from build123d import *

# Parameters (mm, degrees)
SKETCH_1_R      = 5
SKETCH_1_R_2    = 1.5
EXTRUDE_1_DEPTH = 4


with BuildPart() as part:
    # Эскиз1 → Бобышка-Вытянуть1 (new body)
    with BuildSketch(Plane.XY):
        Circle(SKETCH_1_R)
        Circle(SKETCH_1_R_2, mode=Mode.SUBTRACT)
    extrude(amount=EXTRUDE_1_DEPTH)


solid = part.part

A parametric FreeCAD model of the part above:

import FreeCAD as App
import Part
import Sketcher
from FreeCAD import Vector
Q = App.Units.Quantity

doc = App.newDocument("Part")
body = doc.addObject("PartDesign::Body", "Body")

# Sketch on XY plane
sketch1 = body.newObject("Sketcher::SketchObject", "Sketch")
sketch1.AttachmentSupport = (doc.getObject("XY_Plane"), [""])
sketch1.MapMode = "FlatFace"
sketch1.addGeometry(Part.Circle(Vector(0, 0, 0), Vector(0, 0, 1), 5), False)
sketch1.addGeometry(Part.Circle(Vector(0, 0, 0), Vector(0, 0, 1), 1.5), False)
sketch1.addConstraint(Sketcher.Constraint("Coincident", 0, 3, -1, 1))
sketch1.addConstraint(Sketcher.Constraint("Coincident", 1, 3, -1, 1))
sketch1.addConstraint(Sketcher.Constraint("Diameter", 0, Q("10 mm")))
sketch1.addConstraint(Sketcher.Constraint("Diameter", 1, Q("3 mm")))
pad1 = body.newObject("PartDesign::Pad", "Pad")
pad1.Profile = sketch1
pad1.Length = 4

doc.recompute()
